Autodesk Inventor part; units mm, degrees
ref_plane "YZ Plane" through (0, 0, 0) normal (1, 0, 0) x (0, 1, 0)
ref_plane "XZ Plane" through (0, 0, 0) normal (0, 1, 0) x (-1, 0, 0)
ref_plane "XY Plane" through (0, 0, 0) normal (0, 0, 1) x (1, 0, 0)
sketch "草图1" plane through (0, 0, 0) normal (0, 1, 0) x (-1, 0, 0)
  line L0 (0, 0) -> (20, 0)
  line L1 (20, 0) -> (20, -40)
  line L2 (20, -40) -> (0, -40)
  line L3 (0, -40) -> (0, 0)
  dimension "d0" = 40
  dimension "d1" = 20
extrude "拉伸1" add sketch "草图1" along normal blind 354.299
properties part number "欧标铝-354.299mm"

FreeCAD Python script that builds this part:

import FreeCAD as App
import Part
import Sketcher
from FreeCAD import Vector

doc = App.newDocument("Part")
body = doc.addObject("PartDesign::Body", "Body")

sketch1 = body.newObject("Sketcher::SketchObject", "Sketch")
sketch1.AttachmentSupport = (doc.getObject("XZ_Plane"), [""])
sketch1.MapMode = "FlatFace"
sketch1.addGeometry([
    Part.LineSegment(Vector(-20, 0, 0), Vector(0, 0, 0)),
    Part.LineSegment(Vector(0, 0, 0), Vector(0, -40, 0)),
    Part.LineSegment(Vector(0, -40, 0), Vector(-20, -40, 0)),
    Part.LineSegment(Vector(-20, -40, 0), Vector(-20, 0, 0)),
], False)
sketch1.addConstraint([
    Sketcher.Constraint("Coincident", 0, 2, 1, 1),
    Sketcher.Constraint("Coincident", 1, 2, 2, 1),
    Sketcher.Constraint("Coincident", 2, 2, 3, 1),
    Sketcher.Constraint("Coincident", 3, 2, 0, 1),
    Sketcher.Constraint("Horizontal", 0),
    Sketcher.Constraint("Vertical", 1),
    Sketcher.Constraint("Horizontal", 2),
    Sketcher.Constraint("Vertical", 3),
    Sketcher.Constraint("Coincident", 0, 2, -1, 1),
    Sketcher.Constraint("DistanceX", 0, 1, 0, 2, 20.0),
    Sketcher.Constraint("DistanceY", 1, 2, 1, 1, 40.0),
])
pad1 = body.newObject("PartDesign::Pad", "Pad")
pad1.Profile = sketch1
pad1.Length = 354.299
pad1.Reversed = True

doc.recompute()
